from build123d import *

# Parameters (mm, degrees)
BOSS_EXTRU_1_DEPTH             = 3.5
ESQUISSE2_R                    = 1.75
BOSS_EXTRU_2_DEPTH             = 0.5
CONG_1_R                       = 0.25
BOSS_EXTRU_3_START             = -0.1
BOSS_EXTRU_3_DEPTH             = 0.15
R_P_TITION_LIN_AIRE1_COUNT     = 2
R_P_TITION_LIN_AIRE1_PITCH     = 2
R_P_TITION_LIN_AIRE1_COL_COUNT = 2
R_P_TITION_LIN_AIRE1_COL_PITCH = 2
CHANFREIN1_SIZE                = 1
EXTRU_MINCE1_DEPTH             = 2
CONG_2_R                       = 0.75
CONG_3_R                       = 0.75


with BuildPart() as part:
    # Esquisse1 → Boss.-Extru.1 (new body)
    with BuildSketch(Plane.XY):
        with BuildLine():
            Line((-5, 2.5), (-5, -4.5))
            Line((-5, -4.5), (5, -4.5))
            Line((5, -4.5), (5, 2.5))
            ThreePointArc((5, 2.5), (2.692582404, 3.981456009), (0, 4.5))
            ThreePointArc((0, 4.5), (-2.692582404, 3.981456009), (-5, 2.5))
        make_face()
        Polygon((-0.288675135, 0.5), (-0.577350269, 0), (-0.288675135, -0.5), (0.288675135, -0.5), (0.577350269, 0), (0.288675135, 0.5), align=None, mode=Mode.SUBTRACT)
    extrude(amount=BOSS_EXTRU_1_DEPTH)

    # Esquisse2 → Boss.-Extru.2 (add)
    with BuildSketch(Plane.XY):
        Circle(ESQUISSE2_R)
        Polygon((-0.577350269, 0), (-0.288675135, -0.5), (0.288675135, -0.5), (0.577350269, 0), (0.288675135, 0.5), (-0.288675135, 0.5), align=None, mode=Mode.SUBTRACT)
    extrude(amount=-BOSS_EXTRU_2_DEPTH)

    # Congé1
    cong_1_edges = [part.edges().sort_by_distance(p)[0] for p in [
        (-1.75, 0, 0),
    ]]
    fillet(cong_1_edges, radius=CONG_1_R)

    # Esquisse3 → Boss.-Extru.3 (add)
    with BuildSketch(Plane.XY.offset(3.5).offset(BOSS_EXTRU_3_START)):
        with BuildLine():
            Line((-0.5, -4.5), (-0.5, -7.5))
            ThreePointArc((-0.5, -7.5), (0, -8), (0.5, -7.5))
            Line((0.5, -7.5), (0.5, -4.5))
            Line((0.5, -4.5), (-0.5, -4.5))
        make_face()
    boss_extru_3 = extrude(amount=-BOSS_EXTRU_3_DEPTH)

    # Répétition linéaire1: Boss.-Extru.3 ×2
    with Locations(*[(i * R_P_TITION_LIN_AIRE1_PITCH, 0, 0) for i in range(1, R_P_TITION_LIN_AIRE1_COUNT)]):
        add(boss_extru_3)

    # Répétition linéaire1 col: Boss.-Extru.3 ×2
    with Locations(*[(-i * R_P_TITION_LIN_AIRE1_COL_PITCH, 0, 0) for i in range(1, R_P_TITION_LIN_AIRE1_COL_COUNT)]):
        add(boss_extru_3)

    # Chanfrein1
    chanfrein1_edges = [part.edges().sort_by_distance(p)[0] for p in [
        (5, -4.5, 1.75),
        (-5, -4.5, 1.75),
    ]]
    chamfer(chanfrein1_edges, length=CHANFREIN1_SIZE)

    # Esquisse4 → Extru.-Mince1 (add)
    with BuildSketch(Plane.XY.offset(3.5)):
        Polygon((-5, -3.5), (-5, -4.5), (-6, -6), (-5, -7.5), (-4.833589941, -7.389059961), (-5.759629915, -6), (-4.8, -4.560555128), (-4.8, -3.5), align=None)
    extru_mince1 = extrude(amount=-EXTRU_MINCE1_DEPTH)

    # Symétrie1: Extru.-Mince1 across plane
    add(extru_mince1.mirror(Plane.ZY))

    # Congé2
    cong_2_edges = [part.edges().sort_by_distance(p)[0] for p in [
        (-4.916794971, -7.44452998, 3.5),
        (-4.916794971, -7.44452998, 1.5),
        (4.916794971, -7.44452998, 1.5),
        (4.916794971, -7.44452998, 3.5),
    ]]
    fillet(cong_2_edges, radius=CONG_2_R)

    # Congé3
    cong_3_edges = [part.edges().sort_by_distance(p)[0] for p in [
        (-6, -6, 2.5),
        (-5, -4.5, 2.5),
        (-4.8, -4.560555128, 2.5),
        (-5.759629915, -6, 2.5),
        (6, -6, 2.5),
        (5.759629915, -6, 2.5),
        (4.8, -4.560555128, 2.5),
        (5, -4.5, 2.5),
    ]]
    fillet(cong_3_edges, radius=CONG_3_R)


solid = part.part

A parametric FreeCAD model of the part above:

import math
import FreeCAD as App
import Part
import Sketcher
Q = App.Units.Quantity


def edges_at(feature, points):
    """Names of the edges that pass closest to the given points."""
    edges = feature.Shape.Edges
    near = lambda p: min(range(len(edges)), key=lambda i: edges[i].distToShape(Part.Vertex(*p))[0])
    return sorted({f"Edge{near(p) + 1}" for p in points})

doc = App.newDocument("Part")
body = doc.addObject("PartDesign::Body", "Body")

# Sketch on XY plane
sketch1 = body.newObject("Sketcher::SketchObject", "Sketch")
sketch1.AttachmentSupport = (doc.getObject("XY_Plane"), [""])
sketch1.MapMode = "FlatFace"
sketch1.addGeometry(Part.LineSegment(App.Vector(-5, 2.5, 0), App.Vector(-5, -4.5, 0)), False)
sketch1.addGeometry(Part.LineSegment(App.Vector(-5, -4.5, 0), App.Vector(5, -4.5, 0)), False)
sketch1.addGeometry(Part.LineSegment(App.Vector(5, -4.5, 0), App.Vector(5, 2.5, 0)), False)
sketch1.addGeometry(Part.ArcOfCircle(Part.Circle(App.Vector(0, -2.7, 0), App.Vector(0, 0, 1), 7.2), math.radians(46), math.radians(90)), False)
sketch1.addGeometry(Part.ArcOfCircle(Part.Circle(App.Vector(0, -2.7, 0), App.Vector(0, 0, 1), 7.2), math.radians(90), math.radians(134)), False)
sketch1.addGeometry(Part.LineSegment(App.Vector(-0.6, 0, 0), App.Vector(-0.3, 0.5, 0)), False)
sketch1.addGeometry(Part.LineSegment(App.Vector(-0.3, 0.5, 0), App.Vector(0.3, 0.5, 0)), False)
sketch1.addGeometry(Part.LineSegment(App.Vector(0.3, 0.5, 0), App.Vector(0.6, 0, 0)), False)
sketch1.addGeometry(Part.LineSegment(App.Vector(0.6, 0, 0), App.Vector(0.3, -0.5, 0)), False)
sketch1.addGeometry(Part.LineSegment(App.Vector(0.3, -0.5, 0), App.Vector(-0.3, -0.5, 0)), False)
sketch1.addGeometry(Part.LineSegment(App.Vector(-0.3, -0.5, 0), App.Vector(-0.6, 0, 0)), False)
sketch1.addConstraint(Sketcher.Constraint("Coincident", 0, 2, 1, 1))
sketch1.addConstraint(Sketcher.Constraint("Coincident", 1, 2, 2, 1))
sketch1.addConstraint(Sketcher.Constraint("Coincident", 2, 2, 3, 1))
sketch1.addConstraint(Sketcher.Constraint("Tangent", 3, 2, 4, 1))
sketch1.addConstraint(Sketcher.Constraint("Coincident", 4, 2, 0, 1))
sketch1.addConstraint(Sketcher.Constraint("Coincident", 5, 2, 6, 1))
sketch1.addConstraint(Sketcher.Constraint("Coincident", 6, 2, 7, 1))
sketch1.addConstraint(Sketcher.Constraint("Coincident", 7, 2, 8, 1))
sketch1.addConstraint(Sketcher.Constraint("Coincident", 8, 2, 9, 1))
sketch1.addConstraint(Sketcher.Constraint("Coincident", 9, 2, 10, 1))
sketch1.addConstraint(Sketcher.Constraint("Coincident", 10, 2, 5, 1))
sketch1.addConstraint(Sketcher.Constraint("Vertical", 0))
sketch1.addConstraint(Sketcher.Constraint("Horizontal", 1))
sketch1.addConstraint(Sketcher.Constraint("Vertical", 2))
sketch1.addConstraint(Sketcher.Constraint("Horizontal", 6))
sketch1.addConstraint(Sketcher.Constraint("Horizontal", 9))
sketch1.addConstraint(Sketcher.Constraint("Equal", 3, 4))
sketch1.addConstraint(Sketcher.Constraint("Symmetric", 5, 2, 8, 2, -1, 1))
sketch1.addConstraint(Sketcher.Constraint("Symmetric", 7, 2, 10, 2, -1, 1))
sketch1.addConstraint(Sketcher.Constraint("Symmetric", 2, 2, 4, 2, -2))
sketch1.addConstraint(Sketcher.Constraint("PointOnObject", 3, 2, -2))
sketch1.addConstraint(Sketcher.Constraint("PointOnObject", 7, 2, -1))
sketch1.addConstraint(Sketcher.Constraint("Parallel", 7, 10))
sketch1.addConstraint(Sketcher.Constraint("Vertical", 6, 2, 8, 2))
sketch1.addConstraint(Sketcher.Constraint("DistanceX", 1, 1, 1, 2, Q("10 mm")))
sketch1.addConstraint(Sketcher.Constraint("DistanceY", 0, 2, 0, 1, Q("7 mm")))
sketch1.addConstraint(Sketcher.Constraint("Angle", 5, Q("60 deg")))
sketch1.addConstraint(Sketcher.Constraint("Radius", 3, Q("7.25 mm")))
sketch1.addConstraint(Sketcher.Constraint("DistanceY", 5, 2, 3, 2, Q("4 mm")))
sketch1.addConstraint(Sketcher.Constraint("DistanceY", 8, 2, 6, 2, Q("1 mm")))
sketch1.addConstraint(Sketcher.Constraint("DistanceX", 6, 1, 6, 2, Q("0.57735 mm")))
pad1 = body.newObject("PartDesign::Pad", "Pad")
pad1.Profile = sketch1
pad1.Length = 3.5

# Sketch on XY plane
sketch2 = body.newObject("Sketcher::SketchObject", "Sketch001")
sketch2.AttachmentSupport = (doc.getObject("XY_Plane"), [""])
sketch2.MapMode = "FlatFace"
sketch2.addGeometry(Part.Circle(App.Vector(0, 0, 0), App.Vector(0, 0, 1), 1.8), False)
sketch2.addGeometry(Part.LineSegment(App.Vector(-0.3, -0.5, 0), App.Vector(-0.6, 0, 0)), False)
sketch2.addGeometry(Part.LineSegment(App.Vector(-0.6, 0, 0), App.Vector(-0.3, 0.5, 0)), False)
sketch2.addGeometry(Part.LineSegment(App.Vector(-0.3, 0.5, 0), App.Vector(0.3, 0.5, 0)), False)
sketch2.addGeometry(Part.LineSegment(App.Vector(0.3, 0.5, 0), App.Vector(0.6, 0, 0)), False)
sketch2.addGeometry(Part.LineSegment(App.Vector(0.6, 0, 0), App.Vector(0.3, -0.5, 0)), False)
sketch2.addGeometry(Part.LineSegment(App.Vector(0.3, -0.5, 0), App.Vector(-0.3, -0.5, 0)), False)
sketch2.addConstraint(Sketcher.Constraint("Coincident", 1, 2, 2, 1))
sketch2.addConstraint(Sketcher.Constraint("Coincident", 2, 2, 3, 1))
sketch2.addConstraint(Sketcher.Constraint("Coincident", 3, 2, 4, 1))
sketch2.addConstraint(Sketcher.Constraint("Coincident", 4, 2, 5, 1))
sketch2.addConstraint(Sketcher.Constraint("Coincident", 5, 2, 6, 1))
sketch2.addConstraint(Sketcher.Constraint("Coincident", 6, 2, 1, 1))
sketch2.addConstraint(Sketcher.Constraint("Horizontal", 3))
sketch2.addConstraint(Sketcher.Constraint("Horizontal", 6))
sketch2.addConstraint(Sketcher.Constraint("Coincident", 0, 3, -1, 1))
sketch2.addConstraint(Sketcher.Constraint("Symmetric", 1, 2, 4, 2, -1, 1))
sketch2.addConstraint(Sketcher.Constraint("Symmetric", 2, 2, 5, 2, -1, 1))
sketch2.addConstraint(Sketcher.Constraint("PointOnObject", 1, 2, -1))
sketch2.addConstraint(Sketcher.Constraint("Parallel", 1, 4))
sketch2.addConstraint(Sketcher.Constraint("Vertical", 3, 2, 5, 2))
sketch2.addConstraint(Sketcher.Constraint("Diameter", 0, Q("3.5 mm")))
sketch2.addConstraint(Sketcher.Constraint("Angle", 1, Q("120 deg")))
sketch2.addConstraint(Sketcher.Constraint("DistanceY", 5, 2, 3, 2, Q("1 mm")))
sketch2.addConstraint(Sketcher.Constraint("DistanceX", 3, 1, 3, 2, Q("0.57735 mm")))
pad2 = body.newObject("PartDesign::Pad", "Pad001")
pad2.Profile = sketch2
pad2.Length = 0.5
pad2.Reversed = True
doc.recompute()

fillet = body.newObject("PartDesign::Fillet", "Fillet")
fillet.Base = (pad2, edges_at(pad2, [(-1.75, 0, 0)]))
fillet.Radius = 0.25

# Sketch on XY plane
sketch3 = body.newObject("Sketcher::SketchObject", "Sketch002")
sketch3.AttachmentSupport = (doc.getObject("XY_Plane"), [""])
sketch3.MapMode = "FlatFace"
sketch3.AttachmentOffset = App.Placement(App.Vector(0, 0, 3.4), App.Rotation())
sketch3.addGeometry(Part.LineSegment(App.Vector(-0.5, -4.5, 0), App.Vector(-0.5, -7.5, 0)), False)
sketch3.addGeometry(Part.ArcOfCircle(Part.Circle(App.Vector(0, -7.5, 0), App.Vector(0, 0, 1), 0.5), math.radians(180), math.radians(360)), False)
sketch3.addGeometry(Part.LineSegment(App.Vector(0.5, -7.5, 0), App.Vector(0.5, -4.5, 0)), False)
sketch3.addGeometry(Part.LineSegment(App.Vector(0.5, -4.5, 0), App.Vector(-0.5, -4.5, 0)), False)
sketch3.addConstraint(Sketcher.Constraint("Tangent", 0, 2, 1, 1))
sketch3.addConstraint(Sketcher.Constraint("Tangent", 1, 2, 2, 1))
sketch3.addConstraint(Sketcher.Constraint("Coincident", 2, 2, 3, 1))
sketch3.addConstraint(Sketcher.Constraint("Coincident", 3, 2, 0, 1))
sketch3.addConstraint(Sketcher.Constraint("Vertical", 0))
sketch3.addConstraint(Sketcher.Constraint("Vertical", 2))
sketch3.addConstraint(Sketcher.Constraint("Horizontal", 3))
sketch3.addConstraint(Sketcher.Constraint("PointOnObject", 1, 3, -2))
sketch3.addConstraint(Sketcher.Constraint("Radius", 1, Q("0.5 mm")))
sketch3.addConstraint(Sketcher.Constraint("DistanceY", 0, 2, 0, 1, Q("3 mm")))
sketch3.addConstraint(Sketcher.Constraint("DistanceY", 1, 3, -1, 1, Q("7.5 mm")))
pad3 = body.newObject("PartDesign::Pad", "Pad002")
pad3.Profile = sketch3
pad3.Length = 0.15
pad3.Reversed = True
doc.recompute()

linearpattern = body.newObject("PartDesign::LinearPattern", "LinearPattern")
linearpattern.Originals = [pad3]
linearpattern.Direction = (doc.getObject("X_Axis"), [""])
linearpattern.Mode = "offset"
linearpattern.Offset = 2
linearpattern.Occurrences = 2
body.Tip = linearpattern
doc.recompute()

linearpattern2 = body.newObject("PartDesign::LinearPattern", "LinearPattern001")
linearpattern2.Originals = [pad3]
linearpattern2.Direction = (doc.getObject("X_Axis"), [""])
linearpattern2.Mode = "offset"
linearpattern2.Offset = 2
linearpattern2.Occurrences = 2
linearpattern2.Reversed = True
body.Tip = linearpattern2
doc.recompute()

chamfer = body.newObject("PartDesign::Chamfer", "Chamfer")
chamfer.Base = (linearpattern2, edges_at(linearpattern2, [(5, -4.5, 1.75), (-5, -4.5, 1.75)]))
chamfer.Size = 1

# Sketch on XY plane
sketch4 = body.newObject("Sketcher::SketchObject", "Sketch003")
sketch4.AttachmentSupport = (doc.getObject("XY_Plane"), [""])
sketch4.MapMode = "FlatFace"
sketch4.AttachmentOffset = App.Placement(App.Vector(0, 0, 3.5), App.Rotation())
sketch4.addGeometry(Part.LineSegment(App.Vector(-5, -3.5, 0), App.Vector(-5, -4.5, 0)), False)
sketch4.addGeometry(Part.LineSegment(App.Vector(-5, -4.5, 0), App.Vector(-6, -6, 0)), False)
sketch4.addGeometry(Part.LineSegment(App.Vector(-6, -6, 0), App.Vector(-5, -7.5, 0)), False)
sketch4.addGeometry(Part.LineSegment(App.Vector(-5, -7.5, 0), App.Vector(-4.83, -7.39, 0)), False)
sketch4.addGeometry(Part.LineSegment(App.Vector(-4.83, -7.39, 0), App.Vector(-5.76, -6, 0)), False)
sketch4.addGeometry(Part.LineSegment(App.Vector(-5.76, -6, 0), App.Vector(-4.8, -4.56, 0)), False)
sketch4.addGeometry(Part.LineSegment(App.Vector(-4.8, -4.56, 0), App.Vector(-4.8, -3.5, 0)), False)
sketch4.addGeometry(Part.LineSegment(App.Vector(-4.8, -3.5, 0), App.Vector(-5, -3.5, 0)), False)
sketch4.addConstraint(Sketcher.Constraint("Coincident", 0, 2, 1, 1))
sketch4.addConstraint(Sketcher.Constraint("Coincident", 1, 2, 2, 1))
sketch4.addConstraint(Sketcher.Constraint("Coincident", 2, 2, 3, 1))
sketch4.addConstraint(Sketcher.Constraint("Coincident", 3, 2, 4, 1))
sketch4.addConstraint(Sketcher.Constraint("Coincident", 4, 2, 5, 1))
sketch4.addConstraint(Sketcher.Constraint("Coincident", 5, 2, 6, 1))
sketch4.addConstraint(Sketcher.Constraint("Coincident", 6, 2, 7, 1))
sketch4.addConstraint(Sketcher.Constraint("Coincident", 7, 2, 0, 1))
sketch4.addConstraint(Sketcher.Constraint("Vertical", 0))
sketch4.addConstraint(Sketcher.Constraint("Vertical", 6))
sketch4.addConstraint(Sketcher.Constraint("Horizontal", 7))
sketch4.addConstraint(Sketcher.Constraint("Perpendicular", 2, 3))
sketch4.addConstraint(Sketcher.Constraint("Perpendicular", 3, 4))
sketch4.addConstraint(Sketcher.Constraint("Parallel", 1, 5))
sketch4.addConstraint(Sketcher.Constraint("Horizontal", 1, 2, 4, 2))
sketch4.addConstraint(Sketcher.Constraint("Vertical", 0, 2, 2, 2))
sketch4.addConstraint(Sketcher.Constraint("Equal", 1, 2))
sketch4.addConstraint(Sketcher.Constraint("DistanceY", 0, 2, 0, 1, Q("1 mm")))
sketch4.addConstraint(Sketcher.Constraint("DistanceX", 7, 2, 7, 1, Q("0.2 mm")))
sketch4.addConstraint(Sketcher.Constraint("DistanceX", 0, 2, -1, 1, Q("5 mm")))
sketch4.addConstraint(Sketcher.Constraint("DistanceX", 1, 2, -1, 1, Q("6 mm")))
sketch4.addConstraint(Sketcher.Constraint("DistanceY", 1, 2, -1, 1, Q("6 mm")))
sketch4.addConstraint(Sketcher.Constraint("DistanceY", 2, 2, 0, 2, Q("3 mm")))
sketch4.addConstraint(Sketcher.Constraint("Distance", 3, Q("0.2 mm")))
pad4 = body.newObject("PartDesign::Pad", "Pad003")
pad4.Profile = sketch4
pad4.Length = 2
pad4.Reversed = True
doc.recompute()

mirrored = body.newObject("PartDesign::Mirrored", "Mirrored")
mirrored.Originals = [pad4]
mirrored.MirrorPlane = (doc.getObject("YZ_Plane"), [""])
body.Tip = mirrored
doc.recompute()

fillet2 = body.newObject("PartDesign::Fillet", "Fillet001")
fillet2.Base = (mirrored, edges_at(mirrored, [
    (-4.917, -7.445, 3.5),
    (-4.917, -7.445, 1.5),
    (4.917, -7.445, 1.5),
    (4.917, -7.445, 3.5),
]))
fillet2.Radius = 0.75
doc.recompute()

fillet3 = body.newObject("PartDesign::Fillet", "Fillet002")
fillet3.Base = (fillet2, edges_at(fillet2, [
    (-6, -6, 2.5),
    (-5, -4.5, 2.5),
    (-4.8, -4.561, 2.5),
    (-5.76, -6, 2.5),
    (6, -6, 2.5),
    (5.76, -6, 2.5),
    (4.8, -4.561, 2.5),
    (5, -4.5, 2.5),
]))
fillet3.Radius = 0.75

doc.recompute()
